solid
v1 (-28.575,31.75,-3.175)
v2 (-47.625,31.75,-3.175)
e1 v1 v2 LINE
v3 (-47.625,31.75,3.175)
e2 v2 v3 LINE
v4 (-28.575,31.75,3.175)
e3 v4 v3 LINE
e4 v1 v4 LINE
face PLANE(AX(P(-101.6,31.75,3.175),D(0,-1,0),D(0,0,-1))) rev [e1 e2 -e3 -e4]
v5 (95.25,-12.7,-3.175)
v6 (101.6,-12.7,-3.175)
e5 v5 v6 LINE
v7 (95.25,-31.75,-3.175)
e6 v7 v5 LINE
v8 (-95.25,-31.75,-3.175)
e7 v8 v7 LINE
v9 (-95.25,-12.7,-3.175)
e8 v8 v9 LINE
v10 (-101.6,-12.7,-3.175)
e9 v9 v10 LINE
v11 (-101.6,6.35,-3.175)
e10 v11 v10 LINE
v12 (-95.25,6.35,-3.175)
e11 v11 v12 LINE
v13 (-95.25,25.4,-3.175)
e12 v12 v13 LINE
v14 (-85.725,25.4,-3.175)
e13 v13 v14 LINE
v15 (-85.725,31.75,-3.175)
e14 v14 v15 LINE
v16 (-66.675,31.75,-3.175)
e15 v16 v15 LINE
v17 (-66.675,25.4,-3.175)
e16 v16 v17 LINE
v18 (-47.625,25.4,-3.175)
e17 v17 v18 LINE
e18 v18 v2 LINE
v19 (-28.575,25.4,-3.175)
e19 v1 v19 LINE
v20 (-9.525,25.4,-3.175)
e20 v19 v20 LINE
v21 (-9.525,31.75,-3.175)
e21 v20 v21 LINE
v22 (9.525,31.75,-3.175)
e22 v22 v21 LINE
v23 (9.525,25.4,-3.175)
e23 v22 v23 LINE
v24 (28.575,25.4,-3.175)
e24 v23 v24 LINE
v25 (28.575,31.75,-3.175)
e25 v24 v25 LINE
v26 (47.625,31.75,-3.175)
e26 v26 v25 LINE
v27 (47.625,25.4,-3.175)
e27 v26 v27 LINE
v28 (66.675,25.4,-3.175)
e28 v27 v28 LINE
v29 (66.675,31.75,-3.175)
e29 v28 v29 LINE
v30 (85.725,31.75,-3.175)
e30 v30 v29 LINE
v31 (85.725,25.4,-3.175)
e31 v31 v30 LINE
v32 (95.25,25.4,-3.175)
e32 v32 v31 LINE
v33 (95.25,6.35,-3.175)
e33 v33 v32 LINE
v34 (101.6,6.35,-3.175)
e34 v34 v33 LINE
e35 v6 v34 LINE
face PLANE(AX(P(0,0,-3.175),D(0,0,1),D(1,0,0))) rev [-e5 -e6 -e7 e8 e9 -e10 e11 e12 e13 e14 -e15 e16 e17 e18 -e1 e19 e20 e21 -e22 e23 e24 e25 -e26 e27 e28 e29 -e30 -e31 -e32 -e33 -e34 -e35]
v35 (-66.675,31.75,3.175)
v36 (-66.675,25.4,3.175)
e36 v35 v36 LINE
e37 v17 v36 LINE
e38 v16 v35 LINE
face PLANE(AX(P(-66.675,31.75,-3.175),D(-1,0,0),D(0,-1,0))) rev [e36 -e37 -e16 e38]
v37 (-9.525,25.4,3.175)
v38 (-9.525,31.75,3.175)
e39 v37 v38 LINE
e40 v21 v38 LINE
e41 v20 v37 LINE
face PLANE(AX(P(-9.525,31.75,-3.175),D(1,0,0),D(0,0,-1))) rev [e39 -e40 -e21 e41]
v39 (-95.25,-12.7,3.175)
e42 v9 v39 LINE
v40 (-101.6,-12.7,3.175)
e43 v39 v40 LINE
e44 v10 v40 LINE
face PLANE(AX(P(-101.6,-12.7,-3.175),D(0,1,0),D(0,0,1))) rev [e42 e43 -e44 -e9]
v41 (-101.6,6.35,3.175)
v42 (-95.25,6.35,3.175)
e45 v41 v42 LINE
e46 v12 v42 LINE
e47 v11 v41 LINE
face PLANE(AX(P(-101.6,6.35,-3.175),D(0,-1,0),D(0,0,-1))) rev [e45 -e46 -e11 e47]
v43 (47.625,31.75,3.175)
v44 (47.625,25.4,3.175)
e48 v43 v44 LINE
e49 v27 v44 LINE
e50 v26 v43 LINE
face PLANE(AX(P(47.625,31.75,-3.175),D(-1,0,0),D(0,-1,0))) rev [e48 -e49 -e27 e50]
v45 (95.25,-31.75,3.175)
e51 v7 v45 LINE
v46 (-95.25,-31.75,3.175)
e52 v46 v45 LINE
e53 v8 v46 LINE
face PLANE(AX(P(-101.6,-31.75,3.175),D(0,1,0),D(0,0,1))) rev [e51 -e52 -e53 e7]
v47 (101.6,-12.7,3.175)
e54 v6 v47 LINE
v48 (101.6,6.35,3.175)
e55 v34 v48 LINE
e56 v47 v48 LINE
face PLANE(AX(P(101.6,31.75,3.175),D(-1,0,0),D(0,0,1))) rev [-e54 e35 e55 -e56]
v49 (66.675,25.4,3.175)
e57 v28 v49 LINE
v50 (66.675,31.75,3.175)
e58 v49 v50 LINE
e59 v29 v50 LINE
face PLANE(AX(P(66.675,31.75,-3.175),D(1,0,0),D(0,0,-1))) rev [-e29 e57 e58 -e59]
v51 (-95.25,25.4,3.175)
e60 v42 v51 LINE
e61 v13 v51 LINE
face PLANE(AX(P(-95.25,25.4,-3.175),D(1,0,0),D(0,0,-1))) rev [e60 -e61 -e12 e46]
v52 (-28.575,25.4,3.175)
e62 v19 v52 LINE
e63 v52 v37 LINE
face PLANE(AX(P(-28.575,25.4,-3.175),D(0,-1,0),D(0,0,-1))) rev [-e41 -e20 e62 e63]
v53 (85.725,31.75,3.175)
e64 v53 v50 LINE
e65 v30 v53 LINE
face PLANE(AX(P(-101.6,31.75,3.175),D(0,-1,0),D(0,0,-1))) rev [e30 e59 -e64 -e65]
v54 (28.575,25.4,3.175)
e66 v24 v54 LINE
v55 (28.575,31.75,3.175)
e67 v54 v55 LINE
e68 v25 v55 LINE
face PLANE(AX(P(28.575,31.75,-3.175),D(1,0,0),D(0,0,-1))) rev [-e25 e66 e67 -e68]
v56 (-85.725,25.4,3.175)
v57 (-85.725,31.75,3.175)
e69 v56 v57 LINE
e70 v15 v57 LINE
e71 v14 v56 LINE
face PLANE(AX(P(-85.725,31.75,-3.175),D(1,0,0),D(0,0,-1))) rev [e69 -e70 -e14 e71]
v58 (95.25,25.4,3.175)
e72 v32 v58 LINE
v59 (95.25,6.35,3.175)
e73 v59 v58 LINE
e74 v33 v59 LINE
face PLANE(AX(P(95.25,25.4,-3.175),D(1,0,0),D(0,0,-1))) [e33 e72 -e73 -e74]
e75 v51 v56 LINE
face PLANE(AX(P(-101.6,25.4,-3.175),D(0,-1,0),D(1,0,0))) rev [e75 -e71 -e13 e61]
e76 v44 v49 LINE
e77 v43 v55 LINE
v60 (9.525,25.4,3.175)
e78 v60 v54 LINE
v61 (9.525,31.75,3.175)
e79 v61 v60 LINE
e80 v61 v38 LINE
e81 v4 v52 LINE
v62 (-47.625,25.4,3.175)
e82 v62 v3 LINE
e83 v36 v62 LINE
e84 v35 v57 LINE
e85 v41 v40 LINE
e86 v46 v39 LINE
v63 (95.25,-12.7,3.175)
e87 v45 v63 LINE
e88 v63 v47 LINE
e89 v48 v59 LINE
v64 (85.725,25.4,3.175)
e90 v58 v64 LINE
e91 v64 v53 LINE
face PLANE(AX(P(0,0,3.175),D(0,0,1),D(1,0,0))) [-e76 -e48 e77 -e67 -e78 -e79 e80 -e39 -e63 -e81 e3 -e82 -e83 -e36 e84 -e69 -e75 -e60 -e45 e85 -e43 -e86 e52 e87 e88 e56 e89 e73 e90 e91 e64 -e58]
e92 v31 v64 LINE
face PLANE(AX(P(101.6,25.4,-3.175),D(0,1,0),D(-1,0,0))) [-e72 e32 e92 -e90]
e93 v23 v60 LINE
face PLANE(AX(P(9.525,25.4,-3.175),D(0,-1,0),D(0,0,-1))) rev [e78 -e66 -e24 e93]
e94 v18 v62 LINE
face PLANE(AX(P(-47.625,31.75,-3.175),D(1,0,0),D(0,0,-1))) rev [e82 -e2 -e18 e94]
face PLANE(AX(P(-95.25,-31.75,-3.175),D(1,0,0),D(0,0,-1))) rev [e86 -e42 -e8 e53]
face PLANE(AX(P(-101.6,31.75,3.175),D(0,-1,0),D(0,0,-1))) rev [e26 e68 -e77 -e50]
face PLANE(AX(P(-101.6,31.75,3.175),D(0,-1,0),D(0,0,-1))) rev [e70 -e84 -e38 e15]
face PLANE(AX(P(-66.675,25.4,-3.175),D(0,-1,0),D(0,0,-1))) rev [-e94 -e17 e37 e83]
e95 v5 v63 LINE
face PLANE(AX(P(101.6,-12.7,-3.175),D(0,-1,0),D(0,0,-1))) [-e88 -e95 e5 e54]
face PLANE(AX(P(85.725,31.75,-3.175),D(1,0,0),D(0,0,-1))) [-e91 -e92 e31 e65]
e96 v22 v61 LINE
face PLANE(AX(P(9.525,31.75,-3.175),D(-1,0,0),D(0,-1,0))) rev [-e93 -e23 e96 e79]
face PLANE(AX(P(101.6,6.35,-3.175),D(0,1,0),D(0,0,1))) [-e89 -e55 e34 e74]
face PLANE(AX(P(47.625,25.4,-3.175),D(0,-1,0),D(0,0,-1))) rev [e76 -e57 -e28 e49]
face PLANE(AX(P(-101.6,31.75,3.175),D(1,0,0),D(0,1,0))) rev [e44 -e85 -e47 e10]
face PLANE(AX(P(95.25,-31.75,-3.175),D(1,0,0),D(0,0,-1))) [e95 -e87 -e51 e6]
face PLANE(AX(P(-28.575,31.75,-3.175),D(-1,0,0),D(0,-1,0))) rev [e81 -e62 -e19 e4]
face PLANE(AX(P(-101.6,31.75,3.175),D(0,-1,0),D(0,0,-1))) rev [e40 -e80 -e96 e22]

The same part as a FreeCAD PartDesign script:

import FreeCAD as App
import Part
import Sketcher
from FreeCAD import Vector
Q = App.Units.Quantity

doc = App.newDocument("Part")
body = doc.addObject("PartDesign::Body", "Body")

# Sketch on XY plane
sketch1 = body.newObject("Sketcher::SketchObject", "Sketch")
sketch1.AttachmentSupport = (doc.getObject("XY_Plane"), [""])
sketch1.MapMode = "FlatFace"
sketch1.addGeometry([
    Part.LineSegment(Vector(-102, 32, 0), Vector(-102, -32, 0)),
    Part.LineSegment(Vector(-102, -32, 0), Vector(102, -32, 0)),
    Part.LineSegment(Vector(102, -32, 0), Vector(102, 32, 0)),
    Part.LineSegment(Vector(102, 32, 0), Vector(-102, 32, 0)),
], False)
sketch1.addConstraint([
    Sketcher.Constraint("Coincident", 0, 2, 1, 1),
    Sketcher.Constraint("Coincident", 1, 2, 2, 1),
    Sketcher.Constraint("Coincident", 2, 2, 3, 1),
    Sketcher.Constraint("Coincident", 3, 2, 0, 1),
    Sketcher.Constraint("Vertical", 0),
    Sketcher.Constraint("Horizontal", 1),
    Sketcher.Constraint("Vertical", 2),
    Sketcher.Constraint("Horizontal", 3),
    Sketcher.Constraint("Symmetric", 0, 2, 2, 2, -1, 1),
    Sketcher.Constraint("DistanceX", 1, 1, 1, 2, Q("8 in")),
    Sketcher.Constraint("DistanceY", 0, 2, 0, 1, Q("2.5 in")),
])
pad1 = body.newObject("PartDesign::Pad", "Pad")
pad1.Profile = sketch1
pad1.Length = Q("0.25 in")
pad1.Midplane = True

# Sketch on XY plane
sketch2 = body.newObject("Sketcher::SketchObject", "Sketch001")
sketch2.AttachmentSupport = (doc.getObject("XY_Plane"), [""])
sketch2.MapMode = "FlatFace"
sketch2.AttachmentOffset = App.Placement(Vector(0, 0, 0.125 * 25.4), App.Rotation())
sketch2.addGeometry([
    Part.LineSegment(Vector(-102, 32, 0), Vector(-102, 25, 0)),
    Part.LineSegment(Vector(-102, 25, 0), Vector(-86, 25, 0)),
    Part.LineSegment(Vector(-86, 25, 0), Vector(-86, 32, 0)),
    Part.LineSegment(Vector(-86, 32, 0), Vector(-102, 32, 0)),
], False)
sketch2.addConstraint([
    Sketcher.Constraint("Coincident", 0, 2, 1, 1),
    Sketcher.Constraint("Coincident", 1, 2, 2, 1),
    Sketcher.Constraint("Coincident", 2, 2, 3, 1),
    Sketcher.Constraint("Coincident", 3, 2, 0, 1),
    Sketcher.Constraint("Vertical", 0),
    Sketcher.Constraint("Horizontal", 1),
    Sketcher.Constraint("Vertical", 2),
    Sketcher.Constraint("Horizontal", 3),
    Sketcher.Constraint("DistanceX", 0, 2, -1, 1, Q("4 in")),
    Sketcher.Constraint("DistanceY", -1, 1, 0, 2, Q("1 in")),
    Sketcher.Constraint("DistanceY", 0, 2, 0, 1, Q("0.25 in")),
    Sketcher.Constraint("DistanceX", 1, 1, 1, 2, Q("0.625 in")),
])
pocket1 = body.newObject("PartDesign::Pocket", "Pocket")
pocket1.Profile = sketch2
pocket1.Type = "ThroughAll"
doc.recompute()

mirrored = body.newObject("PartDesign::Mirrored", "Mirrored")
mirrored.Originals = [pocket1]
mirrored.MirrorPlane = (doc.getObject("YZ_Plane"), [""])
body.Tip = mirrored

# Sketch on XY plane
sketch3 = body.newObject("Sketcher::SketchObject", "Sketch002")
sketch3.AttachmentSupport = (doc.getObject("XY_Plane"), [""])
sketch3.MapMode = "FlatFace"
sketch3.AttachmentOffset = App.Placement(Vector(0, 0, 0.125 * 25.4), App.Rotation())
sketch3.addGeometry([
    Part.LineSegment(Vector(-67, 32, 0), Vector(-67, 25, 0)),
    Part.LineSegment(Vector(-67, 25, 0), Vector(-48, 25, 0)),
    Part.LineSegment(Vector(-48, 25, 0), Vector(-48, 32, 0)),
    Part.LineSegment(Vector(-48, 32, 0), Vector(-67, 32, 0)),
], False)
sketch3.addConstraint([
    Sketcher.Constraint("Coincident", 0, 2, 1, 1),
    Sketcher.Constraint("Coincident", 1, 2, 2, 1),
    Sketcher.Constraint("Coincident", 2, 2, 3, 1),
    Sketcher.Constraint("Coincident", 3, 2, 0, 1),
    Sketcher.Constraint("Vertical", 0),
    Sketcher.Constraint("Horizontal", 1),
    Sketcher.Constraint("Vertical", 2),
    Sketcher.Constraint("Horizontal", 3),
    Sketcher.Constraint("DistanceY", -1, 1, 0, 2, Q("1 in")),
    Sketcher.Constraint("DistanceX", 1, 1, 1, 2, Q("0.75 in")),
    Sketcher.Constraint("DistanceY", 0, 2, 0, 1, Q("0.25 in")),
    Sketcher.Constraint("DistanceX", 0, 2, -1, 1, Q("2.625 in")),
])
pocket2 = body.newObject("PartDesign::Pocket", "Pocket001")
pocket2.Profile = sketch3
pocket2.Type = "ThroughAll"
doc.recompute()

linearpattern = body.newObject("PartDesign::LinearPattern", "LinearPattern")
linearpattern.Originals = [pocket2]
linearpattern.Direction = (doc.getObject("X_Axis"), [""])
linearpattern.Mode = "offset"
linearpattern.Offset = Q("1.5 in")
linearpattern.Occurrences = 4
body.Tip = linearpattern

# Sketch on XY plane
sketch4 = body.newObject("Sketcher::SketchObject", "Sketch003")
sketch4.AttachmentSupport = (doc.getObject("XY_Plane"), [""])
sketch4.MapMode = "FlatFace"
sketch4.AttachmentOffset = App.Placement(Vector(0, 0, 0.125 * 25.4), App.Rotation())
sketch4.addGeometry([
    Part.LineSegment(Vector(-102, 25, 0), Vector(-102, 6, 0)),  # 0
    Part.LineSegment(Vector(-102, 6, 0), Vector(-95, 6, 0)),  # 1
    Part.LineSegment(Vector(-95, 6, 0), Vector(-95, 25, 0)),  # 2
    Part.LineSegment(Vector(-95, 25, 0), Vector(-102, 25, 0)),  # 3
    Part.LineSegment(Vector(-102, -13, 0), Vector(-102, -32, 0)),  # 4
    Part.LineSegment(Vector(-102, -32, 0), Vector(-95, -32, 0)),  # 5
    Part.LineSegment(Vector(-95, -32, 0), Vector(-95, -13, 0)),  # 6
    Part.LineSegment(Vector(-95, -13, 0), Vector(-102, -13, 0)),  # 7
], False)
sketch4.addConstraint([
    Sketcher.Constraint("Coincident", 0, 2, 1, 1),
    Sketcher.Constraint("Coincident", 1, 2, 2, 1),
    Sketcher.Constraint("Coincident", 2, 2, 3, 1),
    Sketcher.Constraint("Coincident", 3, 2, 0, 1),
    Sketcher.Constraint("Coincident", 4, 2, 5, 1),
    Sketcher.Constraint("Coincident", 5, 2, 6, 1),
    Sketcher.Constraint("Coincident", 6, 2, 7, 1),
    Sketcher.Constraint("Coincident", 7, 2, 4, 1),
    Sketcher.Constraint("Vertical", 0),
    Sketcher.Constraint("Horizontal", 1),
    Sketcher.Constraint("Vertical", 2),
    Sketcher.Constraint("Horizontal", 3),
    Sketcher.Constraint("Vertical", 4),
    Sketcher.Constraint("Horizontal", 5),
    Sketcher.Constraint("Vertical", 6),
    Sketcher.Constraint("Horizontal", 7),
    Sketcher.Constraint("Vertical", 3, 2, 4, 2),
    Sketcher.Constraint("Vertical", 2, 2, 5, 2),
    Sketcher.Constraint("Equal", 2, 4),
    Sketcher.Constraint("DistanceX", 0, 2, -1, 1, Q("4 in")),
    Sketcher.Constraint("DistanceY", -1, 1, 2, 2, Q("1 in")),
    Sketcher.Constraint("DistanceX", 1, 1, 1, 2, Q("0.25 in")),
    Sketcher.Constraint("DistanceY", 0, 2, 0, 1, Q("0.75 in")),
    Sketcher.Constraint("DistanceY", 6, 2, -1, 1, Q("0.5 in")),
])
pocket3 = body.newObject("PartDesign::Pocket", "Pocket002")
pocket3.Profile = sketch4
pocket3.Type = "ThroughAll"
doc.recompute()

mirrored2 = body.newObject("PartDesign::Mirrored", "Mirrored001")
mirrored2.Originals = [pocket3]
mirrored2.MirrorPlane = (doc.getObject("YZ_Plane"), [""])
body.Tip = mirrored2

doc.recompute()
